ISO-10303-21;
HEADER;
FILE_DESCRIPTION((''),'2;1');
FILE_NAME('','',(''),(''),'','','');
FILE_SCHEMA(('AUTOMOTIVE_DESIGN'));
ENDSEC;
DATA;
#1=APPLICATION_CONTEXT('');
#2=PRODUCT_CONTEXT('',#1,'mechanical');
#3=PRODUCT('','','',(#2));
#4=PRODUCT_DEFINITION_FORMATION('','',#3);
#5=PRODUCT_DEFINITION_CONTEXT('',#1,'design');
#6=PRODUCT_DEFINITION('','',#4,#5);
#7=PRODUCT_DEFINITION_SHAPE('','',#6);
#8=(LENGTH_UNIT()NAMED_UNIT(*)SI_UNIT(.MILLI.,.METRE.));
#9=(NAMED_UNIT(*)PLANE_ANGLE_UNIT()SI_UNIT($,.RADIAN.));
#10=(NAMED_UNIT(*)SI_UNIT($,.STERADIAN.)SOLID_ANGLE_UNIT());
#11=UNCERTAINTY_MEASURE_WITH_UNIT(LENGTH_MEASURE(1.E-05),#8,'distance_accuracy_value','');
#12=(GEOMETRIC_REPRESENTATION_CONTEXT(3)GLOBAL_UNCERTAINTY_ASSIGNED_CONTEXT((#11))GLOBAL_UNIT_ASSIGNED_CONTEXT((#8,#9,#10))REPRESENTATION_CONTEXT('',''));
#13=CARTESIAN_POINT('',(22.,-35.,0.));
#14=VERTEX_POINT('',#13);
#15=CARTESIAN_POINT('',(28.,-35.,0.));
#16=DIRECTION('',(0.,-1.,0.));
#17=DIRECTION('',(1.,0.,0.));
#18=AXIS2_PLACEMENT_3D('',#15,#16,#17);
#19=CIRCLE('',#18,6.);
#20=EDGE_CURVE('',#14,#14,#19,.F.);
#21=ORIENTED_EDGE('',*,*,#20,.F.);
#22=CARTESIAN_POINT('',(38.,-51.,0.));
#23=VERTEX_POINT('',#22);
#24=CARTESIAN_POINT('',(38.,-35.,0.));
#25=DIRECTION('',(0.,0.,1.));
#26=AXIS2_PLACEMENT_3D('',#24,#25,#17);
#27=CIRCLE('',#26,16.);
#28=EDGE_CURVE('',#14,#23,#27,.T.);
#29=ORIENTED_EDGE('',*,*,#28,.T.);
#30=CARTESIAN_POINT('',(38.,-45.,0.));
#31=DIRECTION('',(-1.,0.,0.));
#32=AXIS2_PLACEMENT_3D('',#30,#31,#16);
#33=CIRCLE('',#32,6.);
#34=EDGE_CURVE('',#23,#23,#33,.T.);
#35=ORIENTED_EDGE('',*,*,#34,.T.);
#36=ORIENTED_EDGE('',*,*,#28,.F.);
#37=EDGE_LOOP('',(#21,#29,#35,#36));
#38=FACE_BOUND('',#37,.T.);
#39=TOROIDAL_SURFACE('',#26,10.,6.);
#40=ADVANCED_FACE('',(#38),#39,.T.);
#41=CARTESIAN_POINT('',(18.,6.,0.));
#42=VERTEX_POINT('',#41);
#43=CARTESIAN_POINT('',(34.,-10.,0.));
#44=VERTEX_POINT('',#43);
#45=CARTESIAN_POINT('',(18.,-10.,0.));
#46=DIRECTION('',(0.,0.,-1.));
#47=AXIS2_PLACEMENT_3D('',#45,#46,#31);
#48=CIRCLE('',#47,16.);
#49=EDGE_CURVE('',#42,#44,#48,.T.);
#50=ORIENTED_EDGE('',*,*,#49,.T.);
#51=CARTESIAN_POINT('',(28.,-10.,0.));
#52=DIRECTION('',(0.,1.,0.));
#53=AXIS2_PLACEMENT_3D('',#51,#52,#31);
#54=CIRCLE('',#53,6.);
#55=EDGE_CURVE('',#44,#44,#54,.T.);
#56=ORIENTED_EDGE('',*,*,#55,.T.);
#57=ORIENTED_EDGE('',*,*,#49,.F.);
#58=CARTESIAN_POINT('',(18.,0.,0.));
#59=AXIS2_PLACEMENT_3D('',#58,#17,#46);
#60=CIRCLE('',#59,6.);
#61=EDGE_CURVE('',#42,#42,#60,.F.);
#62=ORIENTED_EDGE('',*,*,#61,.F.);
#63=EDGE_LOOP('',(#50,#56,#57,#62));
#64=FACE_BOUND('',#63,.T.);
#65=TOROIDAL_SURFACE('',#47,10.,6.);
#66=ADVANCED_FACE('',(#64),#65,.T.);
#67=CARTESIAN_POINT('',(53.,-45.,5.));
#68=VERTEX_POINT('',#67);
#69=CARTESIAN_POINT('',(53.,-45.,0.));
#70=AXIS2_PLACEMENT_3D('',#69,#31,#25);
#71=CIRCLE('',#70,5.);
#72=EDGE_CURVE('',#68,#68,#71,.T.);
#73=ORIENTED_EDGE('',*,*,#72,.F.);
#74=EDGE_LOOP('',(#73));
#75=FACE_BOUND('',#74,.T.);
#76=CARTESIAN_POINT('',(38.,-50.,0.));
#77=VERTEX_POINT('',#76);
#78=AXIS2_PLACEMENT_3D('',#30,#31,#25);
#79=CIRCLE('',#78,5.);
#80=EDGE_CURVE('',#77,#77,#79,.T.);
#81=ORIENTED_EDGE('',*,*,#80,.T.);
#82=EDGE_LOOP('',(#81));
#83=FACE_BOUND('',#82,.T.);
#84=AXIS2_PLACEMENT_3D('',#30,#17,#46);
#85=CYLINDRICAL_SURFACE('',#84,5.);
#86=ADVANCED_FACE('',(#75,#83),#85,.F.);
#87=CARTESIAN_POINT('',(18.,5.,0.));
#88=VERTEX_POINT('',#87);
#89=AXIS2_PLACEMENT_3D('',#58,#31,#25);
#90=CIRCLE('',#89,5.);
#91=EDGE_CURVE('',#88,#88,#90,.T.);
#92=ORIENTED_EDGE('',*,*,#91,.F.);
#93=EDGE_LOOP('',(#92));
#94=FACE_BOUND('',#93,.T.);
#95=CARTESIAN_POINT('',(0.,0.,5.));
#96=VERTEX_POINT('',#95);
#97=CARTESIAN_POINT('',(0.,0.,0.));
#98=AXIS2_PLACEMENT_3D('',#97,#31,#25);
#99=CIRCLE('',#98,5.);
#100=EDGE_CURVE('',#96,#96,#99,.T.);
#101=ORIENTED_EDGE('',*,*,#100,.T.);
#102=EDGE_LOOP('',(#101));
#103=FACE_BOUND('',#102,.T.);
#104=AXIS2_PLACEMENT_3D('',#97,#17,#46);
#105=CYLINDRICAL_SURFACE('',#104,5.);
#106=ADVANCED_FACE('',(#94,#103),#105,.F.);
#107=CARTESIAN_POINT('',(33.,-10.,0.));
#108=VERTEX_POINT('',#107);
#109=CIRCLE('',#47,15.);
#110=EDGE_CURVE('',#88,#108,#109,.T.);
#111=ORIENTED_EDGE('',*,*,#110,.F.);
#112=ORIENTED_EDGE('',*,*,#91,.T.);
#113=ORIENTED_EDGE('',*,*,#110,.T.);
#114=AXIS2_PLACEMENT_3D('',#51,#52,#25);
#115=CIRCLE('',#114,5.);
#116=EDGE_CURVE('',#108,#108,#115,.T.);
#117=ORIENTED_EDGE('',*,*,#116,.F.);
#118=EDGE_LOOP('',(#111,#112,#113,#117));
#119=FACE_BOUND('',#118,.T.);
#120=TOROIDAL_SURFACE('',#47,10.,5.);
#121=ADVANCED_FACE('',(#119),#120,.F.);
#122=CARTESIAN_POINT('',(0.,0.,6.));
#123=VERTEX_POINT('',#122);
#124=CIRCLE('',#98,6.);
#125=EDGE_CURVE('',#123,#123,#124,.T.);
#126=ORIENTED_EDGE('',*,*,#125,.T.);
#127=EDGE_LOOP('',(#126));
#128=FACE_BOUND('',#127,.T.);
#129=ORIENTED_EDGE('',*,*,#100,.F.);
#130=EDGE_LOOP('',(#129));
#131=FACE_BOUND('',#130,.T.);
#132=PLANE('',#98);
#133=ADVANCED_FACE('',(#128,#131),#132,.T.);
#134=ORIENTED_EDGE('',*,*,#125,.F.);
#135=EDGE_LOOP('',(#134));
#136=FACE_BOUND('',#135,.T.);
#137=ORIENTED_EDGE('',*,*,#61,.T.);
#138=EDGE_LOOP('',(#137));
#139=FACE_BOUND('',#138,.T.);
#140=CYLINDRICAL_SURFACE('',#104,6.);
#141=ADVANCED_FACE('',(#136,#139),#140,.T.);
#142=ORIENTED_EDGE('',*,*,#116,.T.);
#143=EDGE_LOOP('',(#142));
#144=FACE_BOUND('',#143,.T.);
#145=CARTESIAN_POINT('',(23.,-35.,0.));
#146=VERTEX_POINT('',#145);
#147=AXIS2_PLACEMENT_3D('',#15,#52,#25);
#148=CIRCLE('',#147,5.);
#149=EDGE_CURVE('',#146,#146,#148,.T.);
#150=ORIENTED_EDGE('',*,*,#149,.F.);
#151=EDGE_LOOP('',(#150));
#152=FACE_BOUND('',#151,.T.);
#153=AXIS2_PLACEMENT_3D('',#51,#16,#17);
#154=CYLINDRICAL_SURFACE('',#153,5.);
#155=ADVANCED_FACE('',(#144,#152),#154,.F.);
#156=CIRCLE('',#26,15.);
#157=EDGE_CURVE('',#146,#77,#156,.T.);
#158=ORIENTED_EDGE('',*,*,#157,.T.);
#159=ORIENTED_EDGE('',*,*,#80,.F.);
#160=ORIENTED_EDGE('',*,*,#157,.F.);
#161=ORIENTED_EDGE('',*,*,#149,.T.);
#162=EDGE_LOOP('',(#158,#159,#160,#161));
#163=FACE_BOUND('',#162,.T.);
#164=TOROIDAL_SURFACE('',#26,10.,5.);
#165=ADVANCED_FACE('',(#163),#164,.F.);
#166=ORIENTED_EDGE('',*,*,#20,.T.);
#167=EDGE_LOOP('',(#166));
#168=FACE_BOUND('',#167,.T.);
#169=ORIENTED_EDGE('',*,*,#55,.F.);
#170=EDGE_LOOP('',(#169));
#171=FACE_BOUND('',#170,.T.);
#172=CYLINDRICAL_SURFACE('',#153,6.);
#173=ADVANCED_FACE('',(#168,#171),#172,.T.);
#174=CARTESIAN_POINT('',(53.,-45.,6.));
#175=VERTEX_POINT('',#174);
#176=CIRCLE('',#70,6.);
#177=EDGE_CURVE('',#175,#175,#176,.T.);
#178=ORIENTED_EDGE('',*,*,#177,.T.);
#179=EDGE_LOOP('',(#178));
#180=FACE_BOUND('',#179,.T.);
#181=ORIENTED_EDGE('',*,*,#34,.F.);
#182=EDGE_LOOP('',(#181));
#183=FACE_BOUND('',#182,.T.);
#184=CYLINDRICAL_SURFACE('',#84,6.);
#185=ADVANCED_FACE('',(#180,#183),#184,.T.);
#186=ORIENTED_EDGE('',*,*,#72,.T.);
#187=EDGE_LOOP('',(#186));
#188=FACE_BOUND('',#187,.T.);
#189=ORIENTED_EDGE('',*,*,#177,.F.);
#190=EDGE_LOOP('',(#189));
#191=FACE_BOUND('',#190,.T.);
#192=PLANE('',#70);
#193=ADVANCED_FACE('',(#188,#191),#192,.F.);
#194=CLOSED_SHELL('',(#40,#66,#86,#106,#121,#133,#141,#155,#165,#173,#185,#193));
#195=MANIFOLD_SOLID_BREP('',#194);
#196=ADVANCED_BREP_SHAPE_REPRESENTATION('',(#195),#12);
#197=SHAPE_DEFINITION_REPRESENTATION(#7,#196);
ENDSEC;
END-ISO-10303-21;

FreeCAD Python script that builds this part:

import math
import FreeCAD as App
import Part
import Sketcher
from FreeCAD import Vector

doc = App.newDocument("Part")
body = doc.addObject("PartDesign::Body", "Body")

# Sketch on YZ plane
sketch1 = body.newObject("Sketcher::SketchObject", "Sketch")
sketch1.AttachmentSupport = (doc.getObject("YZ_Plane"), [""])
sketch1.MapMode = "FlatFace"
sketch1.addGeometry([
    Part.Circle(Vector(0, 0, 0), Vector(0, 0, 1), 6),
    Part.Circle(Vector(0, 0, 0), Vector(0, 0, 1), 5),
], False)
sketch1.addConstraint([
    Sketcher.Constraint("Coincident", 0, 3, -1, 1),
    Sketcher.Constraint("Coincident", 1, 3, -1, 1),
    Sketcher.Constraint("Diameter", 0, 12.0),
    Sketcher.Constraint("Diameter", 1, 10.0),
])

# Sketch on XY plane
sketch2 = body.newObject("Sketcher::SketchObject", "Sketch001")
sketch2.AttachmentSupport = (doc.getObject("XY_Plane"), [""])
sketch2.MapMode = "FlatFace"
sketch2.addGeometry([
    Part.LineSegment(Vector(0, 0, 0), Vector(18, 0, 0)),  # 0
    Part.ArcOfCircle(Part.Circle(Vector(18, -10, 0), Vector(0, 0, 1), 10), math.radians(0), math.radians(90)),  # 1
    Part.LineSegment(Vector(28, -10, 0), Vector(28, -35, 0)),  # 2
    Part.ArcOfCircle(Part.Circle(Vector(38, -35, 0), Vector(0, 0, 1), 10), math.radians(180), math.radians(270)),  # 3
    Part.LineSegment(Vector(38, -45, 0), Vector(53, -45, 0)),  # 4
], False)
sketch2.addConstraint([
    Sketcher.Constraint("Tangent", 0, 2, 1, 2),
    Sketcher.Constraint("Tangent", 1, 1, 2, 1),
    Sketcher.Constraint("Tangent", 2, 2, 3, 1),
    Sketcher.Constraint("Tangent", 3, 2, 4, 1),
    Sketcher.Constraint("Horizontal", 0),
    Sketcher.Constraint("Vertical", 2),
    Sketcher.Constraint("Horizontal", 4),
    Sketcher.Constraint("Coincident", 0, 1, -1, 1),
    Sketcher.Constraint("Equal", 1, 3),
    Sketcher.Constraint("Radius", 1, 10.0),
    Sketcher.Constraint("DistanceX", 0, 1, 0, 2, 18.0),
    Sketcher.Constraint("DistanceX", 4, 1, 4, 2, 15.0),
    Sketcher.Constraint("DistanceY", 2, 2, 2, 1, 25.0),
])
doc.recompute()

additivepipe = body.newObject("PartDesign::AdditivePipe", "AdditivePipe")
additivepipe.Profile = sketch1
additivepipe.Spine = (sketch2, ["Edge1", "Edge2", "Edge3", "Edge4", "Edge5"])

doc.recompute()
